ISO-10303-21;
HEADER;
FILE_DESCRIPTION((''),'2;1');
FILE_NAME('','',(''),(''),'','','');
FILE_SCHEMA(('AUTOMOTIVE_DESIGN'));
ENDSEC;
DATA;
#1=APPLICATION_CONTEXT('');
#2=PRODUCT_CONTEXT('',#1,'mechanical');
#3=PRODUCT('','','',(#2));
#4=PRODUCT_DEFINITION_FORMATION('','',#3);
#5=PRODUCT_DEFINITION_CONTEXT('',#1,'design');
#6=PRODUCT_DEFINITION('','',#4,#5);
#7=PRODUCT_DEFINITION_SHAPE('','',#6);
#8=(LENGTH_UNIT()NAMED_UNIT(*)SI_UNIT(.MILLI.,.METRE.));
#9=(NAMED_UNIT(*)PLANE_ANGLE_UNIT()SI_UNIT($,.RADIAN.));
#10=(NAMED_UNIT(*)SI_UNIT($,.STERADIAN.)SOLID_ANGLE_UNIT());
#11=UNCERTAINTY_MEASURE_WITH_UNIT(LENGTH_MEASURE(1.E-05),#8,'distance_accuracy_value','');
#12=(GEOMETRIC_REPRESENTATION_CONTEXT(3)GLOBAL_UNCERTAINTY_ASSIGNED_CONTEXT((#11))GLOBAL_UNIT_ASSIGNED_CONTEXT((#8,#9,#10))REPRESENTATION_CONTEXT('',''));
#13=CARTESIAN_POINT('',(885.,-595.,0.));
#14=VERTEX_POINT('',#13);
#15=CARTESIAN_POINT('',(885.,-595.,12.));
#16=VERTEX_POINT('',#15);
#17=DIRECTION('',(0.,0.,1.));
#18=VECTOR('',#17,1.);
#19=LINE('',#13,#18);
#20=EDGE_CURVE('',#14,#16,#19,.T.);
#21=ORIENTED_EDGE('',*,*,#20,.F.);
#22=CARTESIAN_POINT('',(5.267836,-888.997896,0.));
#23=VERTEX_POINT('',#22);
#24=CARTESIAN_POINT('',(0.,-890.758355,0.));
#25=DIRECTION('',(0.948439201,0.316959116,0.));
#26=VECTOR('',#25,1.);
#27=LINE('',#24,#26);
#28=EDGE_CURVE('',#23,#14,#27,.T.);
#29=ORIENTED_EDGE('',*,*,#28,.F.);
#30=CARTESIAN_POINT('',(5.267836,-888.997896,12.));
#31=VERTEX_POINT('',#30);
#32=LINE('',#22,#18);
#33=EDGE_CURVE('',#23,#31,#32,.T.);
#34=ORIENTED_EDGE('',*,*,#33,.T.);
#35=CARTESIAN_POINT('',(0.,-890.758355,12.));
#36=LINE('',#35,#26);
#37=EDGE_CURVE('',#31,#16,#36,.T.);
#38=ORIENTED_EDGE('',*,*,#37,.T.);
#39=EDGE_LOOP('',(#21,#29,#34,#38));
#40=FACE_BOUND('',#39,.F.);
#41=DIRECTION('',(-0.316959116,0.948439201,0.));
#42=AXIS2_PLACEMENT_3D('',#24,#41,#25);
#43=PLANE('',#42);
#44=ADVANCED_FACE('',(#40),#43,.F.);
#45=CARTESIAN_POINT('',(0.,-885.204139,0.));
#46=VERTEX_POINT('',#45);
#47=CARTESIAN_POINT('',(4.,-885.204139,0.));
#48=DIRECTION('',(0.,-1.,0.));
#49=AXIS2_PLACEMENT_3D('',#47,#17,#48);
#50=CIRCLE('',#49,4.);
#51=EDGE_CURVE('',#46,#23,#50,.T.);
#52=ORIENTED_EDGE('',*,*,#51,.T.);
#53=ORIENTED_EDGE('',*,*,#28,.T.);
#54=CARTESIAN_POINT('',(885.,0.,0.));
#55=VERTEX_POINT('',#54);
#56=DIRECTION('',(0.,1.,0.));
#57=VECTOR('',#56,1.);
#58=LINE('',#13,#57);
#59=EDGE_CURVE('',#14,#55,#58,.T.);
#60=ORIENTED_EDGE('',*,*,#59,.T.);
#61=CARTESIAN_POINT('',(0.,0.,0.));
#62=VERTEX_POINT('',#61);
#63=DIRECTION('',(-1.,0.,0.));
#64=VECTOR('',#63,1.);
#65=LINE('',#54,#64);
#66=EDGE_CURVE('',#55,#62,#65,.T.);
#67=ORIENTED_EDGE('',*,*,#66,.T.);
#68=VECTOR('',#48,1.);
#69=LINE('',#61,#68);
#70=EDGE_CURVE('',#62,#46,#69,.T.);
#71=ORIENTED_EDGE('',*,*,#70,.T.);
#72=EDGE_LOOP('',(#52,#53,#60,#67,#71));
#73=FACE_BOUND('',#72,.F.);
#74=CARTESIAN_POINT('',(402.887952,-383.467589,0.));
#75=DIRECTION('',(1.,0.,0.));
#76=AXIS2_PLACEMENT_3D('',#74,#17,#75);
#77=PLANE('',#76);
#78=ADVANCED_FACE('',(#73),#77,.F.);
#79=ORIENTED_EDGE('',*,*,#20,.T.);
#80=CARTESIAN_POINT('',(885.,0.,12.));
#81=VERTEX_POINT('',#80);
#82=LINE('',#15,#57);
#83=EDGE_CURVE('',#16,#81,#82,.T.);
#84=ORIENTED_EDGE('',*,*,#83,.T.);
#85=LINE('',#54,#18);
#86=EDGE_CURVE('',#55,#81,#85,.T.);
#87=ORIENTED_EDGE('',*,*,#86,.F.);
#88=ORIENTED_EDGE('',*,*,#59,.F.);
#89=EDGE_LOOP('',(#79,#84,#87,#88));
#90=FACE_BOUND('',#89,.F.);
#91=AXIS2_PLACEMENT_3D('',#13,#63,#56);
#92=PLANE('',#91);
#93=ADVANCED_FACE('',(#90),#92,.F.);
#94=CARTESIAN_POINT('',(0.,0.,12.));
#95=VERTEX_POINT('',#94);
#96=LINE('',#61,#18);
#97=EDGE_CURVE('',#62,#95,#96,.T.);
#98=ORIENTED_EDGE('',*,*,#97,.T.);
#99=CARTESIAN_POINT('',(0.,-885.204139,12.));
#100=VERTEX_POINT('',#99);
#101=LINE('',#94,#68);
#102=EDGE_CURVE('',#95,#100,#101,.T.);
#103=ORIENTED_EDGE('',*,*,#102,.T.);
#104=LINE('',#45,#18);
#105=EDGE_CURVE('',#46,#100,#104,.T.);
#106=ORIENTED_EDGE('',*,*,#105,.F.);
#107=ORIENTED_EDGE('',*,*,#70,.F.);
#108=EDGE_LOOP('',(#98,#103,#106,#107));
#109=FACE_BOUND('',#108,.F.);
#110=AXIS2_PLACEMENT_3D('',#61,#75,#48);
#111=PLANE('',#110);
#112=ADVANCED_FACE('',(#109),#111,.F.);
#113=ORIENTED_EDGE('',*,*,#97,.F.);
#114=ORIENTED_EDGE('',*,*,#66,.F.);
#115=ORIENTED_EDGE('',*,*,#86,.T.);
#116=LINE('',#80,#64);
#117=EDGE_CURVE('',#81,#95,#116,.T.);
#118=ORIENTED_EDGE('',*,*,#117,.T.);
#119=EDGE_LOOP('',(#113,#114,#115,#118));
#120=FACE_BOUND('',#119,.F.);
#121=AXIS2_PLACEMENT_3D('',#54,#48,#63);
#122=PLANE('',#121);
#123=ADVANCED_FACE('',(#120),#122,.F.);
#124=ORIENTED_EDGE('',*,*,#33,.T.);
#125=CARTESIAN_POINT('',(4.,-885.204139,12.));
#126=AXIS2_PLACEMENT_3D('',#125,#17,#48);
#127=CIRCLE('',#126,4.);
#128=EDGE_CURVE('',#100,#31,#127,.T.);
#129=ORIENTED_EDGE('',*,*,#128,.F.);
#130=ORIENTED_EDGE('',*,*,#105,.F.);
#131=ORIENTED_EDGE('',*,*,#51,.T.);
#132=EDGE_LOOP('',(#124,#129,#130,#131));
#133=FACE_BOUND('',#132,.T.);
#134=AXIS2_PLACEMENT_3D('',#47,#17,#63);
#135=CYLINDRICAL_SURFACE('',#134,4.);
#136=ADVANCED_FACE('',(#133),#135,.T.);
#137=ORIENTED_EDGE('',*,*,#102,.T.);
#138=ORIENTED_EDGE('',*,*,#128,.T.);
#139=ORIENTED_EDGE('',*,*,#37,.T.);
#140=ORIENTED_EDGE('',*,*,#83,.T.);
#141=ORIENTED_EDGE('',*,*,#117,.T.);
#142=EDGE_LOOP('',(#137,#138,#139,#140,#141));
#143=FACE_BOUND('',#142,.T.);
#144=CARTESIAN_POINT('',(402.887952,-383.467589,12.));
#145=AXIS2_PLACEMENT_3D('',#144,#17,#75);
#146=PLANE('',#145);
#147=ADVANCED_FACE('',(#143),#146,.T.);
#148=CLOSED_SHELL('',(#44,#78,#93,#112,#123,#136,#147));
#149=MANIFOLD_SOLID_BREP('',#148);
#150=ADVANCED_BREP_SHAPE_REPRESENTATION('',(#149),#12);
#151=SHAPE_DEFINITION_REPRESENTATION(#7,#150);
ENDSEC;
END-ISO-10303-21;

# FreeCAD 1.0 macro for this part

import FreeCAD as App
import Part
import Sketcher

V = App.Vector
Q = App.Units.Quantity


def edges_at(feature, points):
    """Names of the edges that pass closest to the given points."""
    edges = feature.Shape.Edges
    near = lambda p: min(range(len(edges)), key=lambda i: edges[i].distToShape(Part.Vertex(*p))[0])
    return sorted({f"Edge{near(p) + 1}" for p in points})


def add_polygon(sketch, points):
    """Adds a closed chain of lines whose ends are joined by coincident constraints."""
    first, n = sketch.GeometryCount, len(points)
    for a, b in zip(points, points[1:] + points[:1]):
        sketch.addGeometry(Part.LineSegment(App.Vector(*a, 0), App.Vector(*b, 0)), False)
    for i in range(n):
        sketch.addConstraint(Sketcher.Constraint("Coincident", first + i, 2, first + (i + 1) % n, 1))

doc = App.newDocument("Part")
body = doc.addObject("PartDesign::Body", "Body")

# Sketch on XY plane
sketch1 = body.newObject("Sketcher::SketchObject", "Sketch")
sketch1.AttachmentSupport = (doc.getObject("XY_Plane"), [""])
sketch1.MapMode = "FlatFace"
add_polygon(sketch1, [(885, 0), (0, 0), (0, -891), (885, -595)])  # lines 0-3
sketch1.addConstraint([
    Sketcher.Constraint("Horizontal", 0),
    Sketcher.Constraint("Vertical", 1),
    Sketcher.Constraint("Vertical", 3),
    Sketcher.Constraint("Coincident", 0, 2, -1, 1),
    Sketcher.Constraint("DistanceX", 0, 2, 0, 1, Q("885 mm")),
    Sketcher.Constraint("DistanceY", 3, 1, 3, 2, Q("595 mm")),
    Sketcher.Constraint("Distance", 2, Q("933.112 mm")),
])
pad1 = body.newObject("PartDesign::Pad", "Pad")
pad1.Profile = sketch1
pad1.Length = 12
doc.recompute()

fillet = body.newObject("PartDesign::Fillet", "Fillet")
fillet.Base = (pad1, edges_at(pad1, [(0, -890.758, 6)]))
fillet.Radius = 4

doc.recompute()
